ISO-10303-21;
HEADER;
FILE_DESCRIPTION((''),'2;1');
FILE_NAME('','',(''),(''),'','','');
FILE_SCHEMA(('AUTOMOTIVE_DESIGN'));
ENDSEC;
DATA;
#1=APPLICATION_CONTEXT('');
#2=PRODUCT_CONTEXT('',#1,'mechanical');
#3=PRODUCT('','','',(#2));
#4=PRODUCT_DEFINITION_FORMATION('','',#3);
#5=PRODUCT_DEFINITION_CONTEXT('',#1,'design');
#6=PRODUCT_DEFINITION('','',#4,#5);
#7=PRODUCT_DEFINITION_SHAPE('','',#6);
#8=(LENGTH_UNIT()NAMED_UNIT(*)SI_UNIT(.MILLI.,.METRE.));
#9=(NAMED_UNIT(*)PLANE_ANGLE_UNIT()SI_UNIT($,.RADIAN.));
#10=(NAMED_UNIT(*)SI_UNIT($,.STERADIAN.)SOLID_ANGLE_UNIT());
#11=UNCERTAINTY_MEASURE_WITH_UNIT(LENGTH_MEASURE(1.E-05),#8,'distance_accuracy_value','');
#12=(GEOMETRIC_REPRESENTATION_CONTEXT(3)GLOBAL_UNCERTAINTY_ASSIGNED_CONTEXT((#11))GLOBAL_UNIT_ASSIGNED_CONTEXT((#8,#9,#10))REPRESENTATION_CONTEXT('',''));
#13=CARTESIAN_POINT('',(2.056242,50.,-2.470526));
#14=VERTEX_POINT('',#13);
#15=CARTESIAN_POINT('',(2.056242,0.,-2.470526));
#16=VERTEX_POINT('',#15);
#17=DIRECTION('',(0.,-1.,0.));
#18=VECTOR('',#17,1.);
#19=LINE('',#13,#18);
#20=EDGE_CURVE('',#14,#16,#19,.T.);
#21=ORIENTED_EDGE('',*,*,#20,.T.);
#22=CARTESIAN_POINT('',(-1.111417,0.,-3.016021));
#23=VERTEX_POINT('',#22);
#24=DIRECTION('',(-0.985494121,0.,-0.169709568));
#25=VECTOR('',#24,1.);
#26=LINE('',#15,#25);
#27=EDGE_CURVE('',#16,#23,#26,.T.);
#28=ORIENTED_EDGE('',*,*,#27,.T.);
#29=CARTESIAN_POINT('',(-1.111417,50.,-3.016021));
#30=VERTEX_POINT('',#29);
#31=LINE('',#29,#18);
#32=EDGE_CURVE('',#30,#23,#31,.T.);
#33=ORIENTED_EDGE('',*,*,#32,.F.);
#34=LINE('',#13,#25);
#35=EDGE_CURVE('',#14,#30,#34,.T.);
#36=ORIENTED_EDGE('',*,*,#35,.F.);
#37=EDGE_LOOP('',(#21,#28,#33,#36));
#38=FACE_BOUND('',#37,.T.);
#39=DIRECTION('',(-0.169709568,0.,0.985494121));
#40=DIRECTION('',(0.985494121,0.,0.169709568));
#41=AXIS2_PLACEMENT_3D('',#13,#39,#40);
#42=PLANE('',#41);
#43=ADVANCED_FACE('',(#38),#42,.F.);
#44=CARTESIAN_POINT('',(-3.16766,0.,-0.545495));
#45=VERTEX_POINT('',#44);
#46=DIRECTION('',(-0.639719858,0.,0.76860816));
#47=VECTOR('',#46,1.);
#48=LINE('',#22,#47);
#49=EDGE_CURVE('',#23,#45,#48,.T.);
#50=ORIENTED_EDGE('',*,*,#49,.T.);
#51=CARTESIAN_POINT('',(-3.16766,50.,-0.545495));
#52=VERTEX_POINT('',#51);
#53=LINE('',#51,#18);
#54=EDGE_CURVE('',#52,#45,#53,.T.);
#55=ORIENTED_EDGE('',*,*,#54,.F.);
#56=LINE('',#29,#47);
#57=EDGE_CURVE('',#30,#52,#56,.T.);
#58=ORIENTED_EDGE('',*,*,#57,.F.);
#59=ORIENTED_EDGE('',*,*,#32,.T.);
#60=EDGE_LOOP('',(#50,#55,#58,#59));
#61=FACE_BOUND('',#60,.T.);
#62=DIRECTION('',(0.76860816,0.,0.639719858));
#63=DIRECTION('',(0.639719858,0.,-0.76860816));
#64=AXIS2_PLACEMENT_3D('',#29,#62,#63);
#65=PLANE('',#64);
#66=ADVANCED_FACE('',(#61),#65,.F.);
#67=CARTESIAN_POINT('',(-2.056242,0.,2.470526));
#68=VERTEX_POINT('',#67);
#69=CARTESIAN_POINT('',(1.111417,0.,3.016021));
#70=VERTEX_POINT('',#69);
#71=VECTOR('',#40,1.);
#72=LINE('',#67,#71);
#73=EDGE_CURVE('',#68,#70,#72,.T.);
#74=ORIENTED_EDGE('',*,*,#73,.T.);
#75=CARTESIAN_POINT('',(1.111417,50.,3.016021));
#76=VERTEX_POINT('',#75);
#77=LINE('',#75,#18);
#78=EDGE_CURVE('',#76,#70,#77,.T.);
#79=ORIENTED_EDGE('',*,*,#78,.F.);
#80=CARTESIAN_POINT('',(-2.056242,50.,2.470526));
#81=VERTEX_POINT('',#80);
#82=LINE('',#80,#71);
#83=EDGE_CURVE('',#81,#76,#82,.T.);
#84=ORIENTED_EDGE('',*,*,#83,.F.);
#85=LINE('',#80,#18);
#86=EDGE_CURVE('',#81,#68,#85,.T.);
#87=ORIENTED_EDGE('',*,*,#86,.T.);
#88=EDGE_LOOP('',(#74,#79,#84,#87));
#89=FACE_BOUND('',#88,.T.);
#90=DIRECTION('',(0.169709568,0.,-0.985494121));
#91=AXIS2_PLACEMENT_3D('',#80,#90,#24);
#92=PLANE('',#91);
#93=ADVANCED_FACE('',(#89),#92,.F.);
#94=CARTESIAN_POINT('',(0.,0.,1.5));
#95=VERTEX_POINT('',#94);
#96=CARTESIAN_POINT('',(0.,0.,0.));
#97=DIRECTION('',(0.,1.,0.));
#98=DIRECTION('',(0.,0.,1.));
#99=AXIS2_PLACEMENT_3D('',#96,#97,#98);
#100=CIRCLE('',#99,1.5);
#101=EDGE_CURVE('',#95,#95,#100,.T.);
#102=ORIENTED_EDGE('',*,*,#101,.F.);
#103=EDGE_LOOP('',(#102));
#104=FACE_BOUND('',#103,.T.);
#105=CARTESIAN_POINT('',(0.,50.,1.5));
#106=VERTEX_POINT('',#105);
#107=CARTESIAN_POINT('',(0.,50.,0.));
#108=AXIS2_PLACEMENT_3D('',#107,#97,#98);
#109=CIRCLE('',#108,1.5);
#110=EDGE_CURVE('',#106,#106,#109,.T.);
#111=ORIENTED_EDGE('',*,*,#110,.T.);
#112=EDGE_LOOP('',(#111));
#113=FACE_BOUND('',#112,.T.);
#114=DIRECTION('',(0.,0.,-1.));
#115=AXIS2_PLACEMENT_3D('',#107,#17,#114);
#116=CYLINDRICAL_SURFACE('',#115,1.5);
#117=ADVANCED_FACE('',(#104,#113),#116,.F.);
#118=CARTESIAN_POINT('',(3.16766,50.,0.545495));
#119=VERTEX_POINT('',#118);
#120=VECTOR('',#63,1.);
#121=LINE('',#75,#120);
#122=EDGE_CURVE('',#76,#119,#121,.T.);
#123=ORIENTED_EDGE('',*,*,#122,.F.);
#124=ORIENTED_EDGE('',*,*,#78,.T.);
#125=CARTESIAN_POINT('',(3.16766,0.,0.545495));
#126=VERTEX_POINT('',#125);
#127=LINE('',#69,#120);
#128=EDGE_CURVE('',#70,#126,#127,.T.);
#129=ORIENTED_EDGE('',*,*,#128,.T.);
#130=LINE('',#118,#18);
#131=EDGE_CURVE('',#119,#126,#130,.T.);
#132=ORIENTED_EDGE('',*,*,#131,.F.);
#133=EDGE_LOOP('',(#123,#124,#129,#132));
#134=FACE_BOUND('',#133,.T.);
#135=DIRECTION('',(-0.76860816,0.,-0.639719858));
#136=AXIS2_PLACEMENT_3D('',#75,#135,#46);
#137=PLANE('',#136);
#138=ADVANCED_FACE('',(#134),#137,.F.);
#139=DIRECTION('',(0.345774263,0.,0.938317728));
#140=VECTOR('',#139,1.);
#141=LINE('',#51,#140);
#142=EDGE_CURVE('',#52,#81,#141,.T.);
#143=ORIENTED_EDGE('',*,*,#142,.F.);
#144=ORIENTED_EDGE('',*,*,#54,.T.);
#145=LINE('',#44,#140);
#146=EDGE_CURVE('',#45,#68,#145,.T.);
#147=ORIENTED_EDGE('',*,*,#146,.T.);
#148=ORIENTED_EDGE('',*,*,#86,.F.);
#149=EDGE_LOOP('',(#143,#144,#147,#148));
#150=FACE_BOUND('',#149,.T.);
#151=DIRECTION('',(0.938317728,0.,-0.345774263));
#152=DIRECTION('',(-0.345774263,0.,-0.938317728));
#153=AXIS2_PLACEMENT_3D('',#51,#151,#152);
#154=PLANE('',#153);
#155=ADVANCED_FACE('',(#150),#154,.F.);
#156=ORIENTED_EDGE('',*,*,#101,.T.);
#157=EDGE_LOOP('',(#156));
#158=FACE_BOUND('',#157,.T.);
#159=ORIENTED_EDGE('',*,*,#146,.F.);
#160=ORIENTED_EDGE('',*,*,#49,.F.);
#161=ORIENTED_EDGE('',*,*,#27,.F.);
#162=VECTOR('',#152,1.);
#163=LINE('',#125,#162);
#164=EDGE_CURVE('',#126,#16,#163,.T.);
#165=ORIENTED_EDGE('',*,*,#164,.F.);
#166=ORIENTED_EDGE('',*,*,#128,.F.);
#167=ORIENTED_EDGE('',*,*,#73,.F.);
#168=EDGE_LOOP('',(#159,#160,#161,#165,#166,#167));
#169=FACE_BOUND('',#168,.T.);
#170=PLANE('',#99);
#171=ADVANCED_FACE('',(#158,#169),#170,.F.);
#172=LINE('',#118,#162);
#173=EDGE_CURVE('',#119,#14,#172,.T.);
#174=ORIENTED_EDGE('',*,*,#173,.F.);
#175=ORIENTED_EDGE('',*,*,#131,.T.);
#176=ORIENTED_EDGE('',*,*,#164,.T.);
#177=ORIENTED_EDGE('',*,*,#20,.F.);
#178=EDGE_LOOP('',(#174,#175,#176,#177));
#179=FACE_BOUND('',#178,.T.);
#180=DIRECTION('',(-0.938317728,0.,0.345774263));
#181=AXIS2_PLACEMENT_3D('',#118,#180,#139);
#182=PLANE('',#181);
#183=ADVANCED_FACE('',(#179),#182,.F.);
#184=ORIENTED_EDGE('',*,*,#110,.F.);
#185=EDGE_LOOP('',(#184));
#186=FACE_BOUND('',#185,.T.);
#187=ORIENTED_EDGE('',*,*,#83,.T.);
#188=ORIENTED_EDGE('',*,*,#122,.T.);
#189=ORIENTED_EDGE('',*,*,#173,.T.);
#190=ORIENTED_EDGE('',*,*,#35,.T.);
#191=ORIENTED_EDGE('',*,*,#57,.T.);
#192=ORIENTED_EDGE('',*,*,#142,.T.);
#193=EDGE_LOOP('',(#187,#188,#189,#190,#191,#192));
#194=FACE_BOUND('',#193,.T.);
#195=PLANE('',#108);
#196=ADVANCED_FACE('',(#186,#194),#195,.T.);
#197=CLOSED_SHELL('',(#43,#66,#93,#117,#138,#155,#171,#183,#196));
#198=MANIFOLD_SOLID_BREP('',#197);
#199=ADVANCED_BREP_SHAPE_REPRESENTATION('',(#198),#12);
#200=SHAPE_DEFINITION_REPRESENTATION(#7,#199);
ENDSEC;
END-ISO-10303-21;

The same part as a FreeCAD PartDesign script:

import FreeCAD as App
import Part
import Sketcher
from FreeCAD import Vector


def add_polygon(sketch, points):
    """Adds a closed chain of lines whose ends are joined by coincident constraints."""
    first, n = sketch.GeometryCount, len(points)
    for a, b in zip(points, points[1:] + points[:1]):
        sketch.addGeometry(Part.LineSegment(App.Vector(*a, 0), App.Vector(*b, 0)), False)
    for i in range(n):
        sketch.addConstraint(Sketcher.Constraint("Coincident", first + i, 2, first + (i + 1) % n, 1))

doc = App.newDocument("Part")
params = doc.addObject("Spreadsheet::Sheet", "Params")
for row, (alias, value) in enumerate([
    ("sketch1_diameter", "3 mm"),
    ("pad1_length", "50 mm"),
], start=1):
    params.set(f"A{row}", alias)
    params.set(f"B{row}", "=" + value)
    params.setAlias(f"B{row}", alias)

body = doc.addObject("PartDesign::Body", "Body")

# Sketch on XZ plane
sketch1 = body.newObject("Sketcher::SketchObject", "Sketch")
sketch1.AttachmentSupport = (doc.getObject("XZ_Plane"), [""])
sketch1.MapMode = "FlatFace"
add_polygon(sketch1, [(1.1, 3), (3.2, 0.5), (2.1, -2.5), (-1.1, -3), (-3.2, -0.5), (-2.1, 2.5)])  # lines 0-5
sketch1.addGeometry(Part.Circle(Vector(0, 0, 0), Vector(0, 0, 1), 1.5), False)  # 6
sketch1.addConstraint([
    Sketcher.Constraint("Coincident", 6, 3, -1, 1),
    Sketcher.Constraint("Symmetric", 0, 2, 3, 2, -1, 1),
    Sketcher.Constraint("Symmetric", 1, 2, 4, 2, -1, 1),
    Sketcher.Constraint("Symmetric", 2, 2, 5, 2, -1, 1),
    Sketcher.Constraint("Equal", 0, 1),
    Sketcher.Constraint("Equal", 1, 2),
    Sketcher.Constraint("Diameter", 6, 3.0),
    Sketcher.Constraint("DistanceX", -1, 1, 0, 2, 3.16766),
    Sketcher.Constraint("DistanceY", 2, 2, -1, 1, 3.016021),
    Sketcher.Constraint("DistanceY", 1, 2, 0, 2, 3.016021),
    Sketcher.Constraint("DistanceX", 2, 2, 1, 2, 3.16766),
])
sketch1.setExpression("Constraints[12]", "Params.sketch1_diameter")
pad1 = body.newObject("PartDesign::Pad", "Pad")
pad1.Profile = sketch1
pad1.setExpression("Length", "Params.pad1_length")
pad1.Reversed = True

doc.recompute()
